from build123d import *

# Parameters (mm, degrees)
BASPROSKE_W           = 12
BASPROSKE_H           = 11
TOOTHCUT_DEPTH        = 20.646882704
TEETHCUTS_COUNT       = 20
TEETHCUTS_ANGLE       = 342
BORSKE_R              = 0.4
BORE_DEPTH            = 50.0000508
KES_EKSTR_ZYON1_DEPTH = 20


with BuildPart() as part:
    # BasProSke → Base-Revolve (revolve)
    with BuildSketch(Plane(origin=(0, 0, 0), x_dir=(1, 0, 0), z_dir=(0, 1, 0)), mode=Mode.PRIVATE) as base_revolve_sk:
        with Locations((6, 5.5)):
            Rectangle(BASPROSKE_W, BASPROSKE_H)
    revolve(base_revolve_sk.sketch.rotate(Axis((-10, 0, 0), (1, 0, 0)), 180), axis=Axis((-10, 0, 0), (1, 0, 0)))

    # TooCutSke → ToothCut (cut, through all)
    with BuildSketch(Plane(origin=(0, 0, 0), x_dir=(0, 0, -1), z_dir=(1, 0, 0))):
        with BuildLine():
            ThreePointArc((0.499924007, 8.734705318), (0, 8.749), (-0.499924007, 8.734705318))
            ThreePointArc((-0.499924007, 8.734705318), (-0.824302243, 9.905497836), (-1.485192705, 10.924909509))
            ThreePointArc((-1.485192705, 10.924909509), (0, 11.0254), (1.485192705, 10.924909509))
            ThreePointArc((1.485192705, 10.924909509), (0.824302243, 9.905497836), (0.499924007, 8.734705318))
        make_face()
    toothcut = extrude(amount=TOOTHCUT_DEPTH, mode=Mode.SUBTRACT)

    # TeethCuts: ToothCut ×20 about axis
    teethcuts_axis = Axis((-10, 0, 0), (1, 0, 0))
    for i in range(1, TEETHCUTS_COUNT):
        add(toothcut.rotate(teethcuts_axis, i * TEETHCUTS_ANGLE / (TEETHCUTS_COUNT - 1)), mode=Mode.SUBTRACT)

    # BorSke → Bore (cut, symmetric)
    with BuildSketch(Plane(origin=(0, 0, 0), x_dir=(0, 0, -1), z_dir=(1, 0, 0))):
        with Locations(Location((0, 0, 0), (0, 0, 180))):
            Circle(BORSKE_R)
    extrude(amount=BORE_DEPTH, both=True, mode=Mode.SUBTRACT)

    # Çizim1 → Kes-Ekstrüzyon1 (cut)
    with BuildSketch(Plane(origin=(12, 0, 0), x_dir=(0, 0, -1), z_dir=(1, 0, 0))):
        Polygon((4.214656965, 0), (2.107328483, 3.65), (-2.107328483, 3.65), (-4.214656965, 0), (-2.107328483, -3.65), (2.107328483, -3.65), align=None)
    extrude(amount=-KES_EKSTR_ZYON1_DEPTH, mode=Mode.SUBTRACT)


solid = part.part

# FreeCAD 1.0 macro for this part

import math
import FreeCAD as App
import Part
import Sketcher

V = App.Vector
Q = App.Units.Quantity


def add_polygon(sketch, points):
    """Adds a closed chain of lines whose ends are joined by coincident constraints."""
    first, n = sketch.GeometryCount, len(points)
    for a, b in zip(points, points[1:] + points[:1]):
        sketch.addGeometry(Part.LineSegment(App.Vector(*a, 0), App.Vector(*b, 0)), False)
    for i in range(n):
        sketch.addConstraint(Sketcher.Constraint("Coincident", first + i, 2, first + (i + 1) % n, 1))

doc = App.newDocument("Part")
body = doc.addObject("PartDesign::Body", "Body")

# Sketch on XZ plane
sketch1 = body.newObject("Sketcher::SketchObject", "Sketch")
sketch1.AttachmentSupport = (doc.getObject("XZ_Plane"), [""])
sketch1.MapMode = "FlatFace"
add_polygon(sketch1, [(0, -11), (0, 0), (12, 0), (12, -11)])  # lines 0-3
sketch1.addConstraint(Sketcher.Constraint("Vertical", 0))
sketch1.addConstraint(Sketcher.Constraint("Horizontal", 1))
sketch1.addConstraint(Sketcher.Constraint("Vertical", 2))
sketch1.addConstraint(Sketcher.Constraint("Horizontal", 3))
sketch1.addConstraint(Sketcher.Constraint("Coincident", 0, 2, -1, 1))
sketch1.addConstraint(Sketcher.Constraint("DistanceX", 1, 1, 1, 2, Q("12 mm")))
sketch1.addConstraint(Sketcher.Constraint("DistanceY", 0, 1, 0, 2, Q("11 mm")))
revolution = body.newObject("PartDesign::Revolution", "Revolution")
revolution.Profile = sketch1
revolution.ReferenceAxis = (sketch1, ["H_Axis"])
revolution.Angle = 360

# Sketch on YZ plane
sketch2 = body.newObject("Sketcher::SketchObject", "Sketch001")
sketch2.AttachmentSupport = (doc.getObject("YZ_Plane"), [""])
sketch2.MapMode = "FlatFace"
sketch2.addGeometry(Part.ArcOfCircle(Part.Circle(V(0, 0, 0), V(0, 0, 1), 8.749), math.radians(-3.275705), math.radians(3.275705)), False)
sketch2.addGeometry(Part.ArcOfCircle(Part.Circle(V(8.264487, -4.47219, 0), V(0, 0, 1), 4), math.radians(48.309566), math.radians(83.249005)), False)
sketch2.addGeometry(Part.ArcOfCircle(Part.Circle(V(0, 0, 0), V(0, 0, 1), 11.0254), math.radians(-7.741647), math.radians(7.741647)), False)
sketch2.addGeometry(Part.ArcOfCircle(Part.Circle(V(8.264487, 4.47219, 0), V(0, 0, 1), 4), math.radians(-83.249005), math.radians(-48.309566)), False)
sketch2.addConstraint(Sketcher.Constraint("Coincident", 0, 1, 1, 2))
sketch2.addConstraint(Sketcher.Constraint("Coincident", 1, 1, 2, 1))
sketch2.addConstraint(Sketcher.Constraint("Coincident", 2, 2, 3, 2))
sketch2.addConstraint(Sketcher.Constraint("Coincident", 3, 1, 0, 2))
sketch2.addConstraint(Sketcher.Constraint("Coincident", 0, 3, -1, 1))
sketch2.addConstraint(Sketcher.Constraint("Coincident", 2, 3, -1, 1))
sketch2.addConstraint(Sketcher.Constraint("Equal", 1, 3))
sketch2.addConstraint(Sketcher.Constraint("Symmetric", 1, 3, 3, 3, -1))
sketch2.addConstraint(Sketcher.Constraint("Radius", 1, Q("4 mm")))
sketch2.addConstraint(Sketcher.Constraint("Radius", 0, Q("8.749 mm")))
sketch2.addConstraint(Sketcher.Constraint("Radius", 2, Q("11.0254 mm")))
sketch2.addConstraint(Sketcher.Constraint("DistanceY", 1, 3, -1, 1, Q("4.47219 mm")))
sketch2.addConstraint(Sketcher.Constraint("DistanceX", -1, 1, 1, 1, Q("10.92491 mm")))
pocket1 = body.newObject("PartDesign::Pocket", "Pocket")
pocket1.Profile = sketch2
pocket1.Type = "ThroughAll"
pocket1.Reversed = True
doc.recompute()

polarpattern = body.newObject("PartDesign::PolarPattern", "PolarPattern")
polarpattern.Originals = [pocket1]
polarpattern.Axis = (doc.getObject("X_Axis"), [""])
polarpattern.Angle = 360
polarpattern.Occurrences = 20
body.Tip = polarpattern

# Sketch on YZ plane
sketch3 = body.newObject("Sketcher::SketchObject", "Sketch002")
sketch3.AttachmentSupport = (doc.getObject("YZ_Plane"), [""])
sketch3.MapMode = "FlatFace"
sketch3.addGeometry(Part.Circle(V(0, 0, 0), V(0, 0, 1), 0.4), False)
sketch3.addConstraint(Sketcher.Constraint("Coincident", 0, 3, -1, 1))
sketch3.addConstraint(Sketcher.Constraint("Diameter", 0, Q("0.8 mm")))
pocket2 = body.newObject("PartDesign::Pocket", "Pocket001")
pocket2.Profile = sketch3
pocket2.Length = 100.000102
pocket2.Midplane = True

# Sketch on YZ plane
sketch4 = body.newObject("Sketcher::SketchObject", "Sketch003")
sketch4.AttachmentSupport = (doc.getObject("YZ_Plane"), [""])
sketch4.MapMode = "FlatFace"
sketch4.AttachmentOffset = App.Placement(V(0, 0, 12), App.Rotation())
add_polygon(sketch4, [(0, -4.214657), (3.65, -2.107328), (3.65, 2.107328), (0, 4.214657), (-3.65, 2.107328), (-3.65, -2.107328)])  # lines 0-5
sketch4.addConstraint(Sketcher.Constraint("Vertical", 1))
sketch4.addConstraint(Sketcher.Constraint("Vertical", 4))
sketch4.addConstraint(Sketcher.Constraint("Symmetric", 0, 2, 3, 2, -1, 1))
sketch4.addConstraint(Sketcher.Constraint("Symmetric", 2, 2, 5, 2, -1, 1))
sketch4.addConstraint(Sketcher.Constraint("PointOnObject", 2, 2, -2))
sketch4.addConstraint(Sketcher.Constraint("Parallel", 2, 5))
sketch4.addConstraint(Sketcher.Constraint("Horizontal", 1, 2, 3, 2))
sketch4.addConstraint(Sketcher.Constraint("Angle", 0, Q("30 deg")))
sketch4.addConstraint(Sketcher.Constraint("DistanceX", 3, 2, 1, 2, Q("7.3 mm")))
sketch4.addConstraint(Sketcher.Constraint("DistanceY", 1, 1, 1, 2, Q("4.214657 mm")))
pocket3 = body.newObject("PartDesign::Pocket", "Pocket002")
pocket3.Profile = sketch4
pocket3.Length = 20

doc.recompute()
